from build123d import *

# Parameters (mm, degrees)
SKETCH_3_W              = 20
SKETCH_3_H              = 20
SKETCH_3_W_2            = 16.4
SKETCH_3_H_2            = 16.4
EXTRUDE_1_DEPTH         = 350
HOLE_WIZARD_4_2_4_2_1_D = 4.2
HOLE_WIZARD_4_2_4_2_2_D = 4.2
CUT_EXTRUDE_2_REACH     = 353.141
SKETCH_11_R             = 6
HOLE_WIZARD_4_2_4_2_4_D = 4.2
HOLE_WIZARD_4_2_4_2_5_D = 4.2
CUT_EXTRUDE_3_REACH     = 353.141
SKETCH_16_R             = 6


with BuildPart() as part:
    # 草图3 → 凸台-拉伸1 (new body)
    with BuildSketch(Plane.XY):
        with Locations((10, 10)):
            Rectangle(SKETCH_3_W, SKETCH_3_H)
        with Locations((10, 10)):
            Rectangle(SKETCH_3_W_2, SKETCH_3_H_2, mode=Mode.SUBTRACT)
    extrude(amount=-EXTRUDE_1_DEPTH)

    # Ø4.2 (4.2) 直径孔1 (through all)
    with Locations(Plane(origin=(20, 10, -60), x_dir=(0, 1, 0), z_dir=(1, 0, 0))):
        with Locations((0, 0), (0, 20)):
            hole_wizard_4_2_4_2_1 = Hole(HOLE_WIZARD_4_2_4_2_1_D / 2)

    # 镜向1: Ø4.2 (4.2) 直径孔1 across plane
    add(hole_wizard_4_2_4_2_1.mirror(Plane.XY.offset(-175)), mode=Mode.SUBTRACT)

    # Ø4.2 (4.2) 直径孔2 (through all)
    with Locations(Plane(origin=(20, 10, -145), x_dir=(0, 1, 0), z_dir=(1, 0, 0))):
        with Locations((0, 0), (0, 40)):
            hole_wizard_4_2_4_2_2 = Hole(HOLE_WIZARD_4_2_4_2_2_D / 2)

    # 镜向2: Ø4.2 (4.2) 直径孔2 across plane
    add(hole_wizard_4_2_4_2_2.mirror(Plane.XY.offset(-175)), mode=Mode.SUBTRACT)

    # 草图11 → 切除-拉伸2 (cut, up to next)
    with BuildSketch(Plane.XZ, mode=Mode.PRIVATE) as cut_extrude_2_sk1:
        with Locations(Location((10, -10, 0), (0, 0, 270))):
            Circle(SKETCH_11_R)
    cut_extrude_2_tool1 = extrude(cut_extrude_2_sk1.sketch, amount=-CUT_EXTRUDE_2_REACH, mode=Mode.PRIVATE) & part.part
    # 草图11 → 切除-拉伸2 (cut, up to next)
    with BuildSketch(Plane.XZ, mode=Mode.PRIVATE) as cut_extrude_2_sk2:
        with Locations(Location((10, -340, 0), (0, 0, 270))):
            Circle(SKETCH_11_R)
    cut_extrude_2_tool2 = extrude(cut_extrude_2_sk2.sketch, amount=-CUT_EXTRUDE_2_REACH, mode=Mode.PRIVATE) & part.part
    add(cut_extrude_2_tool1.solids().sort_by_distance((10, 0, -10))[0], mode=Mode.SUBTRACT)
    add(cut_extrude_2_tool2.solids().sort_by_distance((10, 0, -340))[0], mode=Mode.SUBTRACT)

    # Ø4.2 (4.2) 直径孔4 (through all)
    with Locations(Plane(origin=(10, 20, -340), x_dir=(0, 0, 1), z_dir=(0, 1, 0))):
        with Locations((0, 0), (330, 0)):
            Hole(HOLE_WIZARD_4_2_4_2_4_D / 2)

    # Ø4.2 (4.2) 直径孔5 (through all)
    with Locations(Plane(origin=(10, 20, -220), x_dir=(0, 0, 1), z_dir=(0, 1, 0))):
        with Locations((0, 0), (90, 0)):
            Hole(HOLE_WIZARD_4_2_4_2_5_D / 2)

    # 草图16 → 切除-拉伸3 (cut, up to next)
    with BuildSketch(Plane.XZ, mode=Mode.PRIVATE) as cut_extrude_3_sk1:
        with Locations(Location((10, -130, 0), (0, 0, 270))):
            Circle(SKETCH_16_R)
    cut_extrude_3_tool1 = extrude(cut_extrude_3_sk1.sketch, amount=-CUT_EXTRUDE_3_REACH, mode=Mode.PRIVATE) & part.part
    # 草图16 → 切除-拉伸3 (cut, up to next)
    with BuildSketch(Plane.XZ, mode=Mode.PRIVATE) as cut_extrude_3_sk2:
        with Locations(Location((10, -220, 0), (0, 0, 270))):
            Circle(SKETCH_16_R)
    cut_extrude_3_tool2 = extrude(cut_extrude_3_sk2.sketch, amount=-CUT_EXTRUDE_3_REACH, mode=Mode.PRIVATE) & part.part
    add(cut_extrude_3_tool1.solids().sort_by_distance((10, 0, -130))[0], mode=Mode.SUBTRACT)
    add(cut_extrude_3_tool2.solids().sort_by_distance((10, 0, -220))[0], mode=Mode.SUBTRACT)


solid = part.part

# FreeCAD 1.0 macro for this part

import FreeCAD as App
import Part
import Sketcher

V = App.Vector
Q = App.Units.Quantity


def add_polygon(sketch, points):
    """Adds a closed chain of lines whose ends are joined by coincident constraints."""
    first, n = sketch.GeometryCount, len(points)
    for a, b in zip(points, points[1:] + points[:1]):
        sketch.addGeometry(Part.LineSegment(App.Vector(*a, 0), App.Vector(*b, 0)), False)
    for i in range(n):
        sketch.addConstraint(Sketcher.Constraint("Coincident", first + i, 2, first + (i + 1) % n, 1))

doc = App.newDocument("Part")
params = doc.addObject("Spreadsheet::Sheet", "Params")
for row, (alias, value) in enumerate([
    ("sketch1_width", "20 mm"),
    ("sketch1_width2", "16.4 mm"),
    ("pad1_length", "350 mm"),
    ("sketch2_diameter", "4.2 mm"),
    ("hole_diameter", "4.2 mm"),
    ("sketch3_diameter", "4.2 mm"),
    ("hole2_diameter", "4.2 mm"),
    ("sketch4_diameter", "12 mm"),
    ("sketch5_diameter", "12 mm"),
    ("sketch6_diameter", "4.2 mm"),
    ("hole3_diameter", "4.2 mm"),
    ("sketch7_diameter", "4.2 mm"),
    ("hole4_diameter", "4.2 mm"),
    ("sketch8_diameter", "12 mm"),
    ("pocket3_length", "1.8 mm"),
    ("sketch9_diameter", "12 mm"),
    ("pocket4_length", "1.8 mm"),
], start=1):
    params.set(f"A{row}", alias)
    params.set(f"B{row}", "=" + value)
    params.setAlias(f"B{row}", alias)

body = doc.addObject("PartDesign::Body", "Body")

# Sketch on XY plane
sketch1 = doc.addObject("Sketcher::SketchObject", "Sketch")
body.addObject(sketch1)
sketch1.AttachmentSupport = (doc.XY_Plane, [""])
sketch1.MapMode = "FlatFace"
add_polygon(sketch1, [(0, 20), (0, 0), (20, 0), (20, 20)])  # lines 0-3
add_polygon(sketch1, [(18, 2), (2, 2), (2, 18), (18, 18)])  # lines 4-7
sketch1.addConstraint([
    Sketcher.Constraint("Vertical", 0),
    Sketcher.Constraint("Horizontal", 1),
    Sketcher.Constraint("Vertical", 2),
    Sketcher.Constraint("Horizontal", 3),
    Sketcher.Constraint("Horizontal", 4),
    Sketcher.Constraint("Vertical", 5),
    Sketcher.Constraint("Horizontal", 6),
    Sketcher.Constraint("Vertical", 7),
    Sketcher.Constraint("Coincident", 0, 2, -1, 1),
    Sketcher.Constraint("Equal", 3, 0),
    Sketcher.Constraint("Equal", 6, 5),
    Sketcher.Constraint("DistanceX", 1, 1, 1, 2, Q("20 mm")),
    Sketcher.Constraint("DistanceX", 4, 2, 4, 1, Q("16.4 mm")),
    Sketcher.Constraint("DistanceX", -1, 1, 4, 2, Q("1.8 mm")),
    Sketcher.Constraint("DistanceY", -1, 1, 4, 2, Q("1.8 mm")),
])
sketch1.setExpression("Constraints[19]", "Params.sketch1_width")
sketch1.setExpression("Constraints[20]", "Params.sketch1_width2")
pad1 = doc.addObject("PartDesign::Pad", "Pad")
body.addObject(pad1)
pad1.Profile = sketch1
pad1.setExpression("Length", "Params.pad1_length")
pad1.Reversed = True

# Sketch on YZ plane
sketch2 = doc.addObject("Sketcher::SketchObject", "Sketch001")
body.addObject(sketch2)
sketch2.AttachmentSupport = (doc.YZ_Plane, [""])
sketch2.MapMode = "FlatFace"
sketch2.AttachmentOffset = App.Placement(V(0, 0, 20), App.Rotation())
sketch2.addGeometry([
    Part.Circle(V(10, -60, 0), V(0, 0, 1), 2.1),
    Part.Circle(V(10, -40, 0), V(0, 0, 1), 2.1),
], False)
sketch2.addConstraint([
    Sketcher.Constraint("Equal", 0, 1),
    Sketcher.Constraint("Vertical", 0, 3, 1, 3),
    Sketcher.Constraint("Diameter", 0, Q("4.2 mm")),
    Sketcher.Constraint("DistanceX", -1, 1, 0, 3, Q("10 mm")),
    Sketcher.Constraint("DistanceY", 0, 3, -1, 1, Q("60 mm")),
    Sketcher.Constraint("DistanceY", 1, 3, -1, 1, Q("40 mm")),
])
sketch2.setExpression("Constraints[2]", "Params.sketch2_diameter")
doc.recompute()
hole = doc.addObject("PartDesign::Hole", "Hole")
body.addObject(hole)
hole.Profile = sketch2
hole.ThreadType = "None"
hole.setExpression("Diameter", "Params.hole_diameter")
hole.DepthType = "ThroughAll"
doc.recompute()

datumplane = doc.addObject("PartDesign::Plane", "DatumPlane")
body.addObject(datumplane)
datumplane.AttachmentSupport = (doc.XY_Plane, [""])
datumplane.MapMode = "FlatFace"
datumplane.AttachmentOffset = App.Placement(V(0, 0, -175), App.Rotation())
mirrored = doc.addObject("PartDesign::Mirrored", "Mirrored")
body.addObject(mirrored)
mirrored.Originals = [hole]
mirrored.MirrorPlane = (datumplane, [""])
body.Tip = mirrored

# Sketch on YZ plane
sketch3 = doc.addObject("Sketcher::SketchObject", "Sketch002")
body.addObject(sketch3)
sketch3.AttachmentSupport = (doc.YZ_Plane, [""])
sketch3.MapMode = "FlatFace"
sketch3.AttachmentOffset = App.Placement(V(0, 0, 20), App.Rotation())
sketch3.addGeometry([
    Part.Circle(V(10, -145, 0), V(0, 0, 1), 2.1),
    Part.Circle(V(10, -105, 0), V(0, 0, 1), 2.1),
], False)
sketch3.addConstraint([
    Sketcher.Constraint("Equal", 0, 1),
    Sketcher.Constraint("Vertical", 0, 3, 1, 3),
    Sketcher.Constraint("Diameter", 0, Q("4.2 mm")),
    Sketcher.Constraint("DistanceX", -1, 1, 0, 3, Q("10 mm")),
    Sketcher.Constraint("DistanceY", 0, 3, -1, 1, Q("145 mm")),
    Sketcher.Constraint("DistanceY", 1, 3, -1, 1, Q("105 mm")),
])
sketch3.setExpression("Constraints[2]", "Params.sketch3_diameter")
doc.recompute()
hole2 = doc.addObject("PartDesign::Hole", "Hole001")
body.addObject(hole2)
hole2.Profile = sketch3
hole2.ThreadType = "None"
hole2.setExpression("Diameter", "Params.hole2_diameter")
hole2.DepthType = "ThroughAll"
doc.recompute()

datumplane2 = doc.addObject("PartDesign::Plane", "DatumPlane001")
body.addObject(datumplane2)
datumplane2.AttachmentSupport = (doc.XY_Plane, [""])
datumplane2.MapMode = "FlatFace"
datumplane2.AttachmentOffset = App.Placement(V(0, 0, -175), App.Rotation())
mirrored2 = doc.addObject("PartDesign::Mirrored", "Mirrored001")
body.addObject(mirrored2)
mirrored2.Originals = [hole2]
mirrored2.MirrorPlane = (datumplane2, [""])
body.Tip = mirrored2

# Sketch on XZ plane
sketch4 = doc.addObject("Sketcher::SketchObject", "Sketch003")
body.addObject(sketch4)
sketch4.AttachmentSupport = (doc.XZ_Plane, [""])
sketch4.MapMode = "FlatFace"
sketch4.addGeometry(Part.Circle(V(10, -10, 0), V(0, 0, 1), 6), False)
sketch4.addConstraint([
    Sketcher.Constraint("Diameter", 0, Q("12 mm")),
    Sketcher.Constraint("DistanceX", -1, 1, 0, 3, Q("10 mm")),
    Sketcher.Constraint("DistanceY", 0, 3, -1, 1, Q("10 mm")),
])
sketch4.setExpression("Constraints[0]", "Params.sketch4_diameter")
pocket1 = doc.addObject("PartDesign::Pocket", "Pocket")
body.addObject(pocket1)
pocket1.Profile = sketch4
pocket1.Type = "UpToFirst"

# Sketch on XZ plane
sketch5 = doc.addObject("Sketcher::SketchObject", "Sketch004")
body.addObject(sketch5)
sketch5.AttachmentSupport = (doc.XZ_Plane, [""])
sketch5.MapMode = "FlatFace"
sketch5.addGeometry(Part.Circle(V(10, -340, 0), V(0, 0, 1), 6), False)
sketch5.addConstraint([
    Sketcher.Constraint("Diameter", 0, Q("12 mm")),
    Sketcher.Constraint("DistanceX", -1, 1, 0, 3, Q("10 mm")),
    Sketcher.Constraint("DistanceY", 0, 3, -1, 1, Q("340 mm")),
])
sketch5.setExpression("Constraints[0]", "Params.sketch5_diameter")
pocket2 = doc.addObject("PartDesign::Pocket", "Pocket001")
body.addObject(pocket2)
pocket2.Profile = sketch5
pocket2.Type = "UpToFirst"

# Sketch on XZ plane
sketch6 = doc.addObject("Sketcher::SketchObject", "Sketch005")
body.addObject(sketch6)
sketch6.AttachmentSupport = (doc.XZ_Plane, [""])
sketch6.MapMode = "FlatFace"
sketch6.AttachmentOffset = App.Placement(V(0, 0, -20), App.Rotation())
sketch6.addGeometry([
    Part.Circle(V(10, -340, 0), V(0, 0, 1), 2.1),
    Part.Circle(V(10, -10, 0), V(0, 0, 1), 2.1),
], False)
sketch6.addConstraint([
    Sketcher.Constraint("Equal", 0, 1),
    Sketcher.Constraint("Vertical", 0, 3, 1, 3),
    Sketcher.Constraint("Diameter", 0, Q("4.2 mm")),
    Sketcher.Constraint("DistanceX", -1, 1, 0, 3, Q("10 mm")),
    Sketcher.Constraint("DistanceY", 0, 3, -1, 1, Q("340 mm")),
    Sketcher.Constraint("DistanceY", 1, 3, -1, 1, Q("10 mm")),
])
sketch6.setExpression("Constraints[2]", "Params.sketch6_diameter")
doc.recompute()
hole3 = doc.addObject("PartDesign::Hole", "Hole002")
body.addObject(hole3)
hole3.Profile = sketch6
hole3.ThreadType = "None"
hole3.setExpression("Diameter", "Params.hole3_diameter")
hole3.DepthType = "ThroughAll"
hole3.Reversed = True

# Sketch on XZ plane
sketch7 = doc.addObject("Sketcher::SketchObject", "Sketch006")
body.addObject(sketch7)
sketch7.AttachmentSupport = (doc.XZ_Plane, [""])
sketch7.MapMode = "FlatFace"
sketch7.AttachmentOffset = App.Placement(V(0, 0, -20), App.Rotation())
sketch7.addGeometry([
    Part.Circle(V(10, -220, 0), V(0, 0, 1), 2.1),
    Part.Circle(V(10, -130, 0), V(0, 0, 1), 2.1),
], False)
sketch7.addConstraint([
    Sketcher.Constraint("Equal", 0, 1),
    Sketcher.Constraint("Vertical", 0, 3, 1, 3),
    Sketcher.Constraint("Diameter", 0, Q("4.2 mm")),
    Sketcher.Constraint("DistanceX", -1, 1, 0, 3, Q("10 mm")),
    Sketcher.Constraint("DistanceY", 0, 3, -1, 1, Q("220 mm")),
    Sketcher.Constraint("DistanceY", 1, 3, -1, 1, Q("130 mm")),
])
sketch7.setExpression("Constraints[2]", "Params.sketch7_diameter")
doc.recompute()
hole4 = doc.addObject("PartDesign::Hole", "Hole003")
body.addObject(hole4)
hole4.Profile = sketch7
hole4.ThreadType = "None"
hole4.setExpression("Diameter", "Params.hole4_diameter")
hole4.DepthType = "ThroughAll"
hole4.Reversed = True

# Sketch on XZ plane
sketch8 = doc.addObject("Sketcher::SketchObject", "Sketch007")
body.addObject(sketch8)
sketch8.AttachmentSupport = (doc.XZ_Plane, [""])
sketch8.MapMode = "FlatFace"
sketch8.addGeometry(Part.Circle(V(10, -130, 0), V(0, 0, 1), 6), False)
sketch8.addConstraint([
    Sketcher.Constraint("Diameter", 0, Q("12 mm")),
    Sketcher.Constraint("DistanceX", -1, 1, 0, 3, Q("10 mm")),
    Sketcher.Constraint("DistanceY", 0, 3, -1, 1, Q("130 mm")),
])
sketch8.setExpression("Constraints[0]", "Params.sketch8_diameter")
pocket3 = doc.addObject("PartDesign::Pocket", "Pocket002")
body.addObject(pocket3)
pocket3.Profile = sketch8
pocket3.setExpression("Length", "Params.pocket3_length")

# Sketch on XZ plane
sketch9 = doc.addObject("Sketcher::SketchObject", "Sketch008")
body.addObject(sketch9)
sketch9.AttachmentSupport = (doc.XZ_Plane, [""])
sketch9.MapMode = "FlatFace"
sketch9.addGeometry(Part.Circle(V(10, -220, 0), V(0, 0, 1), 6), False)
sketch9.addConstraint([
    Sketcher.Constraint("Diameter", 0, Q("12 mm")),
    Sketcher.Constraint("DistanceX", -1, 1, 0, 3, Q("10 mm")),
    Sketcher.Constraint("DistanceY", 0, 3, -1, 1, Q("220 mm")),
])
sketch9.setExpression("Constraints[0]", "Params.sketch9_diameter")
pocket4 = doc.addObject("PartDesign::Pocket", "Pocket003")
body.addObject(pocket4)
pocket4.Profile = sketch9
pocket4.setExpression("Length", "Params.pocket4_length")

doc.recompute()
